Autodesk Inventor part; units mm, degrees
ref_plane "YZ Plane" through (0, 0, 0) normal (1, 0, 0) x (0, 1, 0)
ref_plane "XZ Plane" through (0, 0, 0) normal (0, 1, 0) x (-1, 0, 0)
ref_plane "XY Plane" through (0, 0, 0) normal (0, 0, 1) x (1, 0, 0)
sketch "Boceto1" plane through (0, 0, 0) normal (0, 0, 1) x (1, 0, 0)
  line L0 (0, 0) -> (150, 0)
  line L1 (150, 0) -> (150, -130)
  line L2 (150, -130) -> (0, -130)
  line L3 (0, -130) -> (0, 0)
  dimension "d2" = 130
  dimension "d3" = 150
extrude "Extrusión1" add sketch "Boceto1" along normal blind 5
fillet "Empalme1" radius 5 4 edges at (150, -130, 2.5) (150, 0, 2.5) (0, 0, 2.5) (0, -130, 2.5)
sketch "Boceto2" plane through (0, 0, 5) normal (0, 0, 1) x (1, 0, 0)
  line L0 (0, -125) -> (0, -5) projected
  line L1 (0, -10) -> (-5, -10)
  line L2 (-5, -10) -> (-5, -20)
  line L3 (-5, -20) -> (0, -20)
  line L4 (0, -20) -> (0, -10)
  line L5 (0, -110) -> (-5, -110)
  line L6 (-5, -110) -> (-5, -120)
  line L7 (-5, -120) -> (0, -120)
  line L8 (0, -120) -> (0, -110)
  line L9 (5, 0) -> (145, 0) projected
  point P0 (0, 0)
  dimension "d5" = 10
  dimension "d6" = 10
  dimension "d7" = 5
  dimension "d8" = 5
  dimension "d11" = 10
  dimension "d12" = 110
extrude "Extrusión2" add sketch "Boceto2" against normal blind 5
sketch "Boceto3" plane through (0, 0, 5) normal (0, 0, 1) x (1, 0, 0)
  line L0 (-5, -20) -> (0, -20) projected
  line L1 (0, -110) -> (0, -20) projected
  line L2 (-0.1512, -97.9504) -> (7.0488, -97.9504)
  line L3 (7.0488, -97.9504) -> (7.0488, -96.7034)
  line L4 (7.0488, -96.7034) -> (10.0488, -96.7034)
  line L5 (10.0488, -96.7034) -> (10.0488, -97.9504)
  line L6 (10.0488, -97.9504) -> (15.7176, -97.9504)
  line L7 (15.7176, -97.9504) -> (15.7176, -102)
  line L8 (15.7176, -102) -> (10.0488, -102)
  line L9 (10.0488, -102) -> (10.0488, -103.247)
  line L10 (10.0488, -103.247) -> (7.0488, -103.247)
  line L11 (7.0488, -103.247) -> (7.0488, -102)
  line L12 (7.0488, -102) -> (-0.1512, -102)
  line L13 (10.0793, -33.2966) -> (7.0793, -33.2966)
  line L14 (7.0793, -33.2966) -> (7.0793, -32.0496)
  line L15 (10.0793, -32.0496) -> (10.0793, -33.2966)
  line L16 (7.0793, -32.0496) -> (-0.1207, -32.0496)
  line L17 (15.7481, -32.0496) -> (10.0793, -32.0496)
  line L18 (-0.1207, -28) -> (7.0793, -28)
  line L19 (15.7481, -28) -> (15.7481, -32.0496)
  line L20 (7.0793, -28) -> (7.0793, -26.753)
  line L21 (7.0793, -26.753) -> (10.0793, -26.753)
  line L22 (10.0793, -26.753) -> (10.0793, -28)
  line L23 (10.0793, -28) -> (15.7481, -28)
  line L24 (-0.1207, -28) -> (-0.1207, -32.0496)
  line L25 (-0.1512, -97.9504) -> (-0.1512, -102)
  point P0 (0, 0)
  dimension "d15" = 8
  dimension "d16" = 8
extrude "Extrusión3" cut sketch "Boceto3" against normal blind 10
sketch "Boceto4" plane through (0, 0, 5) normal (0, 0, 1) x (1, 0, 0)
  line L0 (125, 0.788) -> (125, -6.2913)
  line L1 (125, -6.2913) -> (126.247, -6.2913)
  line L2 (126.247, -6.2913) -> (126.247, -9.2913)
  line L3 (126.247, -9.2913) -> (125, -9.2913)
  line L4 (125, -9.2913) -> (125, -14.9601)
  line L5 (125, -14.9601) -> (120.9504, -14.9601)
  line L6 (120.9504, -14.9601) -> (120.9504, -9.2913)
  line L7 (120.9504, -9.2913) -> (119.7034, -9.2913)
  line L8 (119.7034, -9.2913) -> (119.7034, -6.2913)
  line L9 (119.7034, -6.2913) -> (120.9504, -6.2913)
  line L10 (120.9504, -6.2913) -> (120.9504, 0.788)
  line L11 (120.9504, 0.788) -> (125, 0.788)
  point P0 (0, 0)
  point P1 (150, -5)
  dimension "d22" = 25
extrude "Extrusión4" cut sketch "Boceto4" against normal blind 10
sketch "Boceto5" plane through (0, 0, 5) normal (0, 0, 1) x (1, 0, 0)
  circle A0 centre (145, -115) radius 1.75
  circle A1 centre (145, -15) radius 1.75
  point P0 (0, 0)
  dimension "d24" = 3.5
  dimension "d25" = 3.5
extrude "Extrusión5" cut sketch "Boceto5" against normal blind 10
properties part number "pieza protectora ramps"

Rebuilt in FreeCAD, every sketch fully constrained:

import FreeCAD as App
import Part
import Sketcher
from FreeCAD import Vector
Q = App.Units.Quantity


def edges_at(feature, points):
    """Names of the edges that pass closest to the given points."""
    edges = feature.Shape.Edges
    near = lambda p: min(range(len(edges)), key=lambda i: edges[i].distToShape(Part.Vertex(*p))[0])
    return sorted({f"Edge{near(p) + 1}" for p in points})

doc = App.newDocument("Part")
body = doc.addObject("PartDesign::Body", "Body")

# Sketch on XY plane
sketch1 = body.newObject("Sketcher::SketchObject", "Sketch")
sketch1.AttachmentSupport = (doc.getObject("XY_Plane"), [""])
sketch1.MapMode = "FlatFace"
sketch1.addGeometry(Part.LineSegment(Vector(150, 0, 0), Vector(0, 0, 0)), False)
sketch1.addGeometry(Part.LineSegment(Vector(0, 0, 0), Vector(0, -130, 0)), False)
sketch1.addGeometry(Part.LineSegment(Vector(0, -130, 0), Vector(150, -130, 0)), False)
sketch1.addGeometry(Part.LineSegment(Vector(150, -130, 0), Vector(150, 0, 0)), False)
sketch1.addConstraint(Sketcher.Constraint("Coincident", 0, 2, 1, 1))
sketch1.addConstraint(Sketcher.Constraint("Coincident", 1, 2, 2, 1))
sketch1.addConstraint(Sketcher.Constraint("Coincident", 2, 2, 3, 1))
sketch1.addConstraint(Sketcher.Constraint("Coincident", 3, 2, 0, 1))
sketch1.addConstraint(Sketcher.Constraint("Horizontal", 0))
sketch1.addConstraint(Sketcher.Constraint("Vertical", 1))
sketch1.addConstraint(Sketcher.Constraint("Horizontal", 2))
sketch1.addConstraint(Sketcher.Constraint("Vertical", 3))
sketch1.addConstraint(Sketcher.Constraint("Coincident", 0, 2, -1, 1))
sketch1.addConstraint(Sketcher.Constraint("DistanceX", 0, 2, 0, 1, Q("150 mm")))
sketch1.addConstraint(Sketcher.Constraint("DistanceY", 1, 2, 1, 1, Q("130 mm")))
pad1 = body.newObject("PartDesign::Pad", "Pad")
pad1.Profile = sketch1
pad1.Length = 5
doc.recompute()

fillet = body.newObject("PartDesign::Fillet", "Fillet")
fillet.Base = (pad1, edges_at(pad1, [
    (150, -130, 2.5),
    (150, 0, 2.5),
    (0, 0, 2.5),
    (0, -130, 2.5),
]))
fillet.Radius = 5

# Sketch on XY plane
sketch2 = body.newObject("Sketcher::SketchObject", "Sketch001")
sketch2.AttachmentSupport = (doc.getObject("XY_Plane"), [""])
sketch2.MapMode = "FlatFace"
sketch2.AttachmentOffset = App.Placement(Vector(0, 0, 5), App.Rotation())
sketch2.addGeometry(Part.LineSegment(Vector(-5, -120, 0), Vector(0, -120, 0)), False)
sketch2.addGeometry(Part.LineSegment(Vector(0, -120, 0), Vector(0, -110, 0)), False)
sketch2.addGeometry(Part.LineSegment(Vector(0, -110, 0), Vector(-5, -110, 0)), False)
sketch2.addGeometry(Part.LineSegment(Vector(-5, -110, 0), Vector(-5, -120, 0)), False)
sketch2.addGeometry(Part.LineSegment(Vector(-5, -20, 0), Vector(0, -20, 0)), False)
sketch2.addGeometry(Part.LineSegment(Vector(0, -20, 0), Vector(0, -10, 0)), False)
sketch2.addGeometry(Part.LineSegment(Vector(0, -10, 0), Vector(-5, -10, 0)), False)
sketch2.addGeometry(Part.LineSegment(Vector(-5, -10, 0), Vector(-5, -20, 0)), False)
sketch2.addConstraint(Sketcher.Constraint("Coincident", 0, 2, 1, 1))
sketch2.addConstraint(Sketcher.Constraint("Coincident", 1, 2, 2, 1))
sketch2.addConstraint(Sketcher.Constraint("Coincident", 2, 2, 3, 1))
sketch2.addConstraint(Sketcher.Constraint("Coincident", 3, 2, 0, 1))
sketch2.addConstraint(Sketcher.Constraint("Coincident", 4, 2, 5, 1))
sketch2.addConstraint(Sketcher.Constraint("Coincident", 5, 2, 6, 1))
sketch2.addConstraint(Sketcher.Constraint("Coincident", 6, 2, 7, 1))
sketch2.addConstraint(Sketcher.Constraint("Coincident", 7, 2, 4, 1))
sketch2.addConstraint(Sketcher.Constraint("Horizontal", 0))
sketch2.addConstraint(Sketcher.Constraint("Vertical", 1))
sketch2.addConstraint(Sketcher.Constraint("Horizontal", 2))
sketch2.addConstraint(Sketcher.Constraint("Vertical", 3))
sketch2.addConstraint(Sketcher.Constraint("Horizontal", 4))
sketch2.addConstraint(Sketcher.Constraint("Vertical", 5))
sketch2.addConstraint(Sketcher.Constraint("Horizontal", 6))
sketch2.addConstraint(Sketcher.Constraint("Vertical", 7))
sketch2.addConstraint(Sketcher.Constraint("PointOnObject", 0, 2, -2))
sketch2.addConstraint(Sketcher.Constraint("PointOnObject", 4, 2, -2))
sketch2.addConstraint(Sketcher.Constraint("Vertical", 3, 2, 6, 2))
sketch2.addConstraint(Sketcher.Constraint("Equal", 3, 5))
sketch2.addConstraint(Sketcher.Constraint("DistanceX", 0, 1, 0, 2, Q("5 mm")))
sketch2.addConstraint(Sketcher.Constraint("DistanceY", 1, 1, 1, 2, Q("10 mm")))
sketch2.addConstraint(Sketcher.Constraint("DistanceY", 1, 2, -1, 1, Q("110 mm")))
sketch2.addConstraint(Sketcher.Constraint("DistanceY", 5, 2, -1, 1, Q("10 mm")))
pad2 = body.newObject("PartDesign::Pad", "Pad001")
pad2.Profile = sketch2
pad2.Length = 5
pad2.Reversed = True

# Sketch on XY plane
sketch3 = body.newObject("Sketcher::SketchObject", "Sketch002")
sketch3.AttachmentSupport = (doc.getObject("XY_Plane"), [""])
sketch3.MapMode = "FlatFace"
sketch3.AttachmentOffset = App.Placement(Vector(0, 0, 5), App.Rotation())
sketch3.addGeometry(Part.LineSegment(Vector(-0.2, -102, 0), Vector(7, -102, 0)), False)
sketch3.addGeometry(Part.LineSegment(Vector(7, -102, 0), Vector(7, -103.2, 0)), False)
sketch3.addGeometry(Part.LineSegment(Vector(7, -103.2, 0), Vector(10, -103.2, 0)), False)
sketch3.addGeometry(Part.LineSegment(Vector(10, -103.2, 0), Vector(10, -102, 0)), False)
sketch3.addGeometry(Part.LineSegment(Vector(10, -102, 0), Vector(15.7, -102, 0)), False)
sketch3.addGeometry(Part.LineSegment(Vector(15.7, -102, 0), Vector(15.7, -98, 0)), False)
sketch3.addGeometry(Part.LineSegment(Vector(15.7, -98, 0), Vector(10, -98, 0)), False)
sketch3.addGeometry(Part.LineSegment(Vector(10, -98, 0), Vector(10, -96.7, 0)), False)
sketch3.addGeometry(Part.LineSegment(Vector(10, -96.7, 0), Vector(7, -96.7, 0)), False)
sketch3.addGeometry(Part.LineSegment(Vector(7, -96.7, 0), Vector(7, -98, 0)), False)
sketch3.addGeometry(Part.LineSegment(Vector(7, -98, 0), Vector(-0.2, -98, 0)), False)
sketch3.addGeometry(Part.LineSegment(Vector(-0.2, -98, 0), Vector(-0.2, -102, 0)), False)
sketch3.addGeometry(Part.LineSegment(Vector(-0.1, -32, 0), Vector(7.1, -32, 0)), False)
sketch3.addGeometry(Part.LineSegment(Vector(7.1, -32, 0), Vector(7.1, -33.3, 0)), False)
sketch3.addGeometry(Part.LineSegment(Vector(7.1, -33.3, 0), Vector(10.1, -33.3, 0)), False)
sketch3.addGeometry(Part.LineSegment(Vector(10.1, -33.3, 0), Vector(10.1, -32, 0)), False)
sketch3.addGeometry(Part.LineSegment(Vector(10.1, -32, 0), Vector(15.7, -32, 0)), False)
sketch3.addGeometry(Part.LineSegment(Vector(15.7, -32, 0), Vector(15.7, -28, 0)), False)
sketch3.addGeometry(Part.LineSegment(Vector(15.7, -28, 0), Vector(10.1, -28, 0)), False)
sketch3.addGeometry(Part.LineSegment(Vector(10.1, -28, 0), Vector(10.1, -26.8, 0)), False)
sketch3.addGeometry(Part.LineSegment(Vector(10.1, -26.8, 0), Vector(7.1, -26.8, 0)), False)
sketch3.addGeometry(Part.LineSegment(Vector(7.1, -26.8, 0), Vector(7.1, -28, 0)), False)
sketch3.addGeometry(Part.LineSegment(Vector(7.1, -28, 0), Vector(-0.1, -28, 0)), False)
sketch3.addGeometry(Part.LineSegment(Vector(-0.1, -28, 0), Vector(-0.1, -32, 0)), False)
sketch3.addConstraint(Sketcher.Constraint("Coincident", 0, 2, 1, 1))
sketch3.addConstraint(Sketcher.Constraint("Coincident", 1, 2, 2, 1))
sketch3.addConstraint(Sketcher.Constraint("Coincident", 2, 2, 3, 1))
sketch3.addConstraint(Sketcher.Constraint("Coincident", 3, 2, 4, 1))
sketch3.addConstraint(Sketcher.Constraint("Coincident", 4, 2, 5, 1))
sketch3.addConstraint(Sketcher.Constraint("Coincident", 5, 2, 6, 1))
sketch3.addConstraint(Sketcher.Constraint("Coincident", 6, 2, 7, 1))
sketch3.addConstraint(Sketcher.Constraint("Coincident", 7, 2, 8, 1))
sketch3.addConstraint(Sketcher.Constraint("Coincident", 8, 2, 9, 1))
sketch3.addConstraint(Sketcher.Constraint("Coincident", 9, 2, 10, 1))
sketch3.addConstraint(Sketcher.Constraint("Coincident", 10, 2, 11, 1))
sketch3.addConstraint(Sketcher.Constraint("Coincident", 11, 2, 0, 1))
sketch3.addConstraint(Sketcher.Constraint("Coincident", 12, 2, 13, 1))
sketch3.addConstraint(Sketcher.Constraint("Coincident", 13, 2, 14, 1))
sketch3.addConstraint(Sketcher.Constraint("Coincident", 14, 2, 15, 1))
sketch3.addConstraint(Sketcher.Constraint("Coincident", 15, 2, 16, 1))
sketch3.addConstraint(Sketcher.Constraint("Coincident", 16, 2, 17, 1))
sketch3.addConstraint(Sketcher.Constraint("Coincident", 17, 2, 18, 1))
sketch3.addConstraint(Sketcher.Constraint("Coincident", 18, 2, 19, 1))
sketch3.addConstraint(Sketcher.Constraint("Coincident", 19, 2, 20, 1))
sketch3.addConstraint(Sketcher.Constraint("Coincident", 20, 2, 21, 1))
sketch3.addConstraint(Sketcher.Constraint("Coincident", 21, 2, 22, 1))
sketch3.addConstraint(Sketcher.Constraint("Coincident", 22, 2, 23, 1))
sketch3.addConstraint(Sketcher.Constraint("Coincident", 23, 2, 12, 1))
sketch3.addConstraint(Sketcher.Constraint("Horizontal", 0))
sketch3.addConstraint(Sketcher.Constraint("Vertical", 1))
sketch3.addConstraint(Sketcher.Constraint("Horizontal", 2))
sketch3.addConstraint(Sketcher.Constraint("Vertical", 3))
sketch3.addConstraint(Sketcher.Constraint("Horizontal", 4))
sketch3.addConstraint(Sketcher.Constraint("Vertical", 5))
sketch3.addConstraint(Sketcher.Constraint("Horizontal", 6))
sketch3.addConstraint(Sketcher.Constraint("Vertical", 7))
sketch3.addConstraint(Sketcher.Constraint("Horizontal", 8))
sketch3.addConstraint(Sketcher.Constraint("Vertical", 9))
sketch3.addConstraint(Sketcher.Constraint("Horizontal", 10))
sketch3.addConstraint(Sketcher.Constraint("Vertical", 11))
sketch3.addConstraint(Sketcher.Constraint("Horizontal", 12))
sketch3.addConstraint(Sketcher.Constraint("Vertical", 13))
sketch3.addConstraint(Sketcher.Constraint("Horizontal", 14))
sketch3.addConstraint(Sketcher.Constraint("Vertical", 15))
sketch3.addConstraint(Sketcher.Constraint("Horizontal", 16))
sketch3.addConstraint(Sketcher.Constraint("Vertical", 17))
sketch3.addConstraint(Sketcher.Constraint("Horizontal", 18))
sketch3.addConstraint(Sketcher.Constraint("Vertical", 19))
sketch3.addConstraint(Sketcher.Constraint("Horizontal", 20))
sketch3.addConstraint(Sketcher.Constraint("Vertical", 21))
sketch3.addConstraint(Sketcher.Constraint("Horizontal", 22))
sketch3.addConstraint(Sketcher.Constraint("Vertical", 23))
sketch3.addConstraint(Sketcher.Constraint("Horizontal", 0, 2, 3, 2))
sketch3.addConstraint(Sketcher.Constraint("Horizontal", 6, 2, 9, 2))
sketch3.addConstraint(Sketcher.Constraint("Horizontal", 12, 2, 15, 2))
sketch3.addConstraint(Sketcher.Constraint("Horizontal", 18, 2, 21, 2))
sketch3.addConstraint(Sketcher.Constraint("Vertical", 3, 2, 6, 2))
sketch3.addConstraint(Sketcher.Constraint("Vertical", 1, 2, 8, 2))
sketch3.addConstraint(Sketcher.Constraint("Vertical", 15, 2, 18, 2))
sketch3.addConstraint(Sketcher.Constraint("Vertical", 13, 2, 20, 2))
sketch3.addConstraint(Sketcher.Constraint("Equal", 10, 12))
sketch3.addConstraint(Sketcher.Constraint("Equal", 8, 14))
sketch3.addConstraint(Sketcher.Constraint("Equal", 6, 16))
sketch3.addConstraint(Sketcher.Constraint("Equal", 3, 7))
sketch3.addConstraint(Sketcher.Constraint("Equal", 9, 13))
sketch3.addConstraint(Sketcher.Constraint("Equal", 11, 17))
sketch3.addConstraint(Sketcher.Constraint("Equal", 15, 19))
sketch3.addConstraint(Sketcher.Constraint("DistanceX", 2, 1, 2, 2, Q("3 mm")))
sketch3.addConstraint(Sketcher.Constraint("DistanceX", 0, 1, 0, 2, Q("7.2 mm")))
sketch3.addConstraint(Sketcher.Constraint("DistanceY", 0, 2, -1, 1, Q("102 mm")))
sketch3.addConstraint(Sketcher.Constraint("DistanceY", 17, 2, -1, 1, Q("28 mm")))
sketch3.addConstraint(Sketcher.Constraint("DistanceY", 1, 2, 1, 1, Q("1.247 mm")))
sketch3.addConstraint(Sketcher.Constraint("DistanceX", 4, 1, 4, 2, Q("5.6688 mm")))
sketch3.addConstraint(Sketcher.Constraint("DistanceY", 5, 1, 5, 2, Q("4.0496 mm")))
sketch3.addConstraint(Sketcher.Constraint("DistanceX", -1, 1, 16, 2, Q("15.748 mm")))
sketch3.addConstraint(Sketcher.Constraint("DistanceX", -1, 1, 0, 2, Q("7.0488 mm")))
pocket1 = body.newObject("PartDesign::Pocket", "Pocket")
pocket1.Profile = sketch3
pocket1.Length = 10

# Sketch on XY plane
sketch4 = body.newObject("Sketcher::SketchObject", "Sketch003")
sketch4.AttachmentSupport = (doc.getObject("XY_Plane"), [""])
sketch4.MapMode = "FlatFace"
sketch4.AttachmentOffset = App.Placement(Vector(0, 0, 5), App.Rotation())
sketch4.addGeometry(Part.LineSegment(Vector(125, -6.3, 0), Vector(125, 0.8, 0)), False)
sketch4.addGeometry(Part.LineSegment(Vector(125, 0.8, 0), Vector(121, 0.8, 0)), False)
sketch4.addGeometry(Part.LineSegment(Vector(121, 0.8, 0), Vector(121, -6.3, 0)), False)
sketch4.addGeometry(Part.LineSegment(Vector(121, -6.3, 0), Vector(119.7, -6.3, 0)), False)
sketch4.addGeometry(Part.LineSegment(Vector(119.7, -6.3, 0), Vector(119.7, -9.3, 0)), False)
sketch4.addGeometry(Part.LineSegment(Vector(119.7, -9.3, 0), Vector(121, -9.3, 0)), False)
sketch4.addGeometry(Part.LineSegment(Vector(121, -9.3, 0), Vector(121, -15, 0)), False)
sketch4.addGeometry(Part.LineSegment(Vector(121, -15, 0), Vector(125, -15, 0)), False)
sketch4.addGeometry(Part.LineSegment(Vector(125, -15, 0), Vector(125, -9.3, 0)), False)
sketch4.addGeometry(Part.LineSegment(Vector(125, -9.3, 0), Vector(126.2, -9.3, 0)), False)
sketch4.addGeometry(Part.LineSegment(Vector(126.2, -9.3, 0), Vector(126.2, -6.3, 0)), False)
sketch4.addGeometry(Part.LineSegment(Vector(126.2, -6.3, 0), Vector(125, -6.3, 0)), False)
sketch4.addConstraint(Sketcher.Constraint("Coincident", 0, 2, 1, 1))
sketch4.addConstraint(Sketcher.Constraint("Coincident", 1, 2, 2, 1))
sketch4.addConstraint(Sketcher.Constraint("Coincident", 2, 2, 3, 1))
sketch4.addConstraint(Sketcher.Constraint("Coincident", 3, 2, 4, 1))
sketch4.addConstraint(Sketcher.Constraint("Coincident", 4, 2, 5, 1))
sketch4.addConstraint(Sketcher.Constraint("Coincident", 5, 2, 6, 1))
sketch4.addConstraint(Sketcher.Constraint("Coincident", 6, 2, 7, 1))
sketch4.addConstraint(Sketcher.Constraint("Coincident", 7, 2, 8, 1))
sketch4.addConstraint(Sketcher.Constraint("Coincident", 8, 2, 9, 1))
sketch4.addConstraint(Sketcher.Constraint("Coincident", 9, 2, 10, 1))
sketch4.addConstraint(Sketcher.Constraint("Coincident", 10, 2, 11, 1))
sketch4.addConstraint(Sketcher.Constraint("Coincident", 11, 2, 0, 1))
sketch4.addConstraint(Sketcher.Constraint("Vertical", 0))
sketch4.addConstraint(Sketcher.Constraint("Horizontal", 1))
sketch4.addConstraint(Sketcher.Constraint("Vertical", 2))
sketch4.addConstraint(Sketcher.Constraint("Horizontal", 3))
sketch4.addConstraint(Sketcher.Constraint("Vertical", 4))
sketch4.addConstraint(Sketcher.Constraint("Horizontal", 5))
sketch4.addConstraint(Sketcher.Constraint("Vertical", 6))
sketch4.addConstraint(Sketcher.Constraint("Horizontal", 7))
sketch4.addConstraint(Sketcher.Constraint("Vertical", 8))
sketch4.addConstraint(Sketcher.Constraint("Horizontal", 9))
sketch4.addConstraint(Sketcher.Constraint("Vertical", 10))
sketch4.addConstraint(Sketcher.Constraint("Horizontal", 11))
sketch4.addConstraint(Sketcher.Constraint("Horizontal", 5, 2, 8, 2))
sketch4.addConstraint(Sketcher.Constraint("Horizontal", 3, 2, 10, 2))
sketch4.addConstraint(Sketcher.Constraint("Vertical", 2, 2, 5, 2))
sketch4.addConstraint(Sketcher.Constraint("Vertical", 0, 2, 7, 2))
sketch4.addConstraint(Sketcher.Constraint("Equal", 5, 9))
sketch4.addConstraint(Sketcher.Constraint("DistanceY", 4, 2, 4, 1, Q("3 mm")))
sketch4.addConstraint(Sketcher.Constraint("DistanceX", -1, 1, 0, 2, Q("125 mm")))
sketch4.addConstraint(Sketcher.Constraint("DistanceX", 3, 2, 3, 1, Q("1.247 mm")))
sketch4.addConstraint(Sketcher.Constraint("DistanceY", 6, 2, -1, 1, Q("14.96 mm")))
sketch4.addConstraint(Sketcher.Constraint("DistanceX", 1, 2, 1, 1, Q("4.0496 mm")))
sketch4.addConstraint(Sketcher.Constraint("DistanceY", 0, 1, 0, 2, Q("7.0793 mm")))
sketch4.addConstraint(Sketcher.Constraint("DistanceY", 6, 2, 6, 1, Q("5.6688 mm")))
pocket2 = body.newObject("PartDesign::Pocket", "Pocket001")
pocket2.Profile = sketch4
pocket2.Length = 10

# Sketch on XY plane
sketch5 = body.newObject("Sketcher::SketchObject", "Sketch004")
sketch5.AttachmentSupport = (doc.getObject("XY_Plane"), [""])
sketch5.MapMode = "FlatFace"
sketch5.AttachmentOffset = App.Placement(Vector(0, 0, 5), App.Rotation())
sketch5.addGeometry(Part.Circle(Vector(145, -115, 0), Vector(0, 0, 1), 1.8), False)
sketch5.addGeometry(Part.Circle(Vector(145, -15, 0), Vector(0, 0, 1), 1.8), False)
sketch5.addConstraint(Sketcher.Constraint("Equal", 0, 1))
sketch5.addConstraint(Sketcher.Constraint("Vertical", 0, 3, 1, 3))
sketch5.addConstraint(Sketcher.Constraint("Diameter", 0, Q("3.5 mm")))
sketch5.addConstraint(Sketcher.Constraint("DistanceX", -1, 1, 0, 3, Q("145 mm")))
sketch5.addConstraint(Sketcher.Constraint("DistanceY", 0, 3, -1, 1, Q("115 mm")))
sketch5.addConstraint(Sketcher.Constraint("DistanceY", 1, 3, -1, 1, Q("15 mm")))
pocket3 = body.newObject("PartDesign::Pocket", "Pocket002")
pocket3.Profile = sketch5
pocket3.Length = 10

doc.recompute()
